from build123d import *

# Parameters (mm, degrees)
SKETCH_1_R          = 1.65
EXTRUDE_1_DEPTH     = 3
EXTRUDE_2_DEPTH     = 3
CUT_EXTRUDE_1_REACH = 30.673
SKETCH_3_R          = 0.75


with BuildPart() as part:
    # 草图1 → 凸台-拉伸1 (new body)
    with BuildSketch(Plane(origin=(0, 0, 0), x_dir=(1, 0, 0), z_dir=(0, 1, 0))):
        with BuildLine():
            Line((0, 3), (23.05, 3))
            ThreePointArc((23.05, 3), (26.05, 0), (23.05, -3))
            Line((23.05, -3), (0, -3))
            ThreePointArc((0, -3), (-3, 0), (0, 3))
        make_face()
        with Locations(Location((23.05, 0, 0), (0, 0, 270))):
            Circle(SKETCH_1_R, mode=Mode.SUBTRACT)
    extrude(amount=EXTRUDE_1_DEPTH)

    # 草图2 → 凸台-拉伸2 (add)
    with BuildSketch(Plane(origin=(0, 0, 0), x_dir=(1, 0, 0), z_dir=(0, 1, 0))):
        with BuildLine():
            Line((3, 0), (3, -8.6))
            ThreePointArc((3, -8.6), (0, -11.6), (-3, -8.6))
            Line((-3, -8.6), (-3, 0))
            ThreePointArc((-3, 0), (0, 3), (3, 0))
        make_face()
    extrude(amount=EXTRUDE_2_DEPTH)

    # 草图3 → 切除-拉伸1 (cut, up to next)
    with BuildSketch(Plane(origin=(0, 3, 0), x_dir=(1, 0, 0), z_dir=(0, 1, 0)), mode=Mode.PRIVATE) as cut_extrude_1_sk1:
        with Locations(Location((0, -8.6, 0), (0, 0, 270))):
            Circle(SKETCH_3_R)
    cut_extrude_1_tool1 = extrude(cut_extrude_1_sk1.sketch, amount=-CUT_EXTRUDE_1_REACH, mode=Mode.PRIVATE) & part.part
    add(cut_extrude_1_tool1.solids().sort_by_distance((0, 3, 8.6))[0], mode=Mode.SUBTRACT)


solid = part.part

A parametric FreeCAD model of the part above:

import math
import FreeCAD as App
import Part
import Sketcher

V = App.Vector

doc = App.newDocument("Part")
body = doc.addObject("PartDesign::Body", "Body")

# Sketch on XZ plane
sketch1 = body.newObject("Sketcher::SketchObject", "Sketch")
sketch1.AttachmentSupport = (doc.getObject("XZ_Plane"), [""])
sketch1.MapMode = "FlatFace"
sketch1.addGeometry(Part.LineSegment(V(23.05, -3, 0), V(0, -3, 0)), False)
sketch1.addGeometry(Part.ArcOfCircle(Part.Circle(V(0, 0, 0), V(0, 0, 1), 3), math.radians(90), math.radians(270)), False)
sketch1.addGeometry(Part.LineSegment(V(0, 3, 0), V(23.05, 3, 0)), False)
sketch1.addGeometry(Part.ArcOfCircle(Part.Circle(V(23.05, 0, 0), V(0, 0, 1), 3), math.radians(-90), math.radians(90)), False)
sketch1.addGeometry(Part.Circle(V(23.05, 0, 0), V(0, 0, 1), 1.65), False)
sketch1.addConstraint(Sketcher.Constraint("Tangent", 0, 2, 1, 2))
sketch1.addConstraint(Sketcher.Constraint("Tangent", 1, 1, 2, 1))
sketch1.addConstraint(Sketcher.Constraint("Tangent", 2, 2, 3, 2))
sketch1.addConstraint(Sketcher.Constraint("Tangent", 3, 1, 0, 1))
sketch1.addConstraint(Sketcher.Constraint("Horizontal", 0))
sketch1.addConstraint(Sketcher.Constraint("Horizontal", 2))
sketch1.addConstraint(Sketcher.Constraint("Coincident", 1, 3, -1, 1))
sketch1.addConstraint(Sketcher.Constraint("Coincident", 4, 3, 3, 3))
sketch1.addConstraint(Sketcher.Constraint("Radius", 1, 3.0))
sketch1.addConstraint(Sketcher.Constraint("Diameter", 4, 3.3))
sketch1.addConstraint(Sketcher.Constraint("DistanceX", 0, 2, 0, 1, 23.05))
pad1 = body.newObject("PartDesign::Pad", "Pad")
pad1.Profile = sketch1
pad1.Length = 3
pad1.Reversed = True

# Sketch on XZ plane
sketch2 = body.newObject("Sketcher::SketchObject", "Sketch001")
sketch2.AttachmentSupport = (doc.getObject("XZ_Plane"), [""])
sketch2.MapMode = "FlatFace"
sketch2.addGeometry(Part.LineSegment(V(3, 8.6, 0), V(3, 0, 0)), False)
sketch2.addGeometry(Part.ArcOfCircle(Part.Circle(V(0, 0, 0), V(0, 0, 1), 3), math.radians(180), math.radians(360)), False)
sketch2.addGeometry(Part.LineSegment(V(-3, 0, 0), V(-3, 8.6, 0)), False)
sketch2.addGeometry(Part.ArcOfCircle(Part.Circle(V(0, 8.6, 0), V(0, 0, 1), 3), math.radians(0), math.radians(180)), False)
sketch2.addConstraint(Sketcher.Constraint("Tangent", 0, 2, 1, 2))
sketch2.addConstraint(Sketcher.Constraint("Tangent", 1, 1, 2, 1))
sketch2.addConstraint(Sketcher.Constraint("Tangent", 2, 2, 3, 2))
sketch2.addConstraint(Sketcher.Constraint("Tangent", 3, 1, 0, 1))
sketch2.addConstraint(Sketcher.Constraint("Vertical", 0))
sketch2.addConstraint(Sketcher.Constraint("Vertical", 2))
sketch2.addConstraint(Sketcher.Constraint("Coincident", 1, 3, -1, 1))
sketch2.addConstraint(Sketcher.Constraint("Radius", 1, 3.0))
sketch2.addConstraint(Sketcher.Constraint("DistanceY", 0, 2, 0, 1, 8.6))
pad2 = body.newObject("PartDesign::Pad", "Pad001")
pad2.Profile = sketch2
pad2.Length = 3
pad2.Reversed = True

# Sketch on XZ plane
sketch3 = body.newObject("Sketcher::SketchObject", "Sketch002")
sketch3.AttachmentSupport = (doc.getObject("XZ_Plane"), [""])
sketch3.MapMode = "FlatFace"
sketch3.AttachmentOffset = App.Placement(V(0, 0, -3), App.Rotation())
sketch3.addGeometry(Part.Circle(V(0, 8.6, 0), V(0, 0, 1), 0.75), False)
sketch3.addConstraint(Sketcher.Constraint("PointOnObject", 0, 3, -2))
sketch3.addConstraint(Sketcher.Constraint("Diameter", 0, 1.5))
sketch3.addConstraint(Sketcher.Constraint("DistanceY", -1, 1, 0, 3, 8.6))
pocket1 = body.newObject("PartDesign::Pocket", "Pocket")
pocket1.Profile = sketch3
pocket1.Type = "UpToFirst"
pocket1.Reversed = True

doc.recompute()
